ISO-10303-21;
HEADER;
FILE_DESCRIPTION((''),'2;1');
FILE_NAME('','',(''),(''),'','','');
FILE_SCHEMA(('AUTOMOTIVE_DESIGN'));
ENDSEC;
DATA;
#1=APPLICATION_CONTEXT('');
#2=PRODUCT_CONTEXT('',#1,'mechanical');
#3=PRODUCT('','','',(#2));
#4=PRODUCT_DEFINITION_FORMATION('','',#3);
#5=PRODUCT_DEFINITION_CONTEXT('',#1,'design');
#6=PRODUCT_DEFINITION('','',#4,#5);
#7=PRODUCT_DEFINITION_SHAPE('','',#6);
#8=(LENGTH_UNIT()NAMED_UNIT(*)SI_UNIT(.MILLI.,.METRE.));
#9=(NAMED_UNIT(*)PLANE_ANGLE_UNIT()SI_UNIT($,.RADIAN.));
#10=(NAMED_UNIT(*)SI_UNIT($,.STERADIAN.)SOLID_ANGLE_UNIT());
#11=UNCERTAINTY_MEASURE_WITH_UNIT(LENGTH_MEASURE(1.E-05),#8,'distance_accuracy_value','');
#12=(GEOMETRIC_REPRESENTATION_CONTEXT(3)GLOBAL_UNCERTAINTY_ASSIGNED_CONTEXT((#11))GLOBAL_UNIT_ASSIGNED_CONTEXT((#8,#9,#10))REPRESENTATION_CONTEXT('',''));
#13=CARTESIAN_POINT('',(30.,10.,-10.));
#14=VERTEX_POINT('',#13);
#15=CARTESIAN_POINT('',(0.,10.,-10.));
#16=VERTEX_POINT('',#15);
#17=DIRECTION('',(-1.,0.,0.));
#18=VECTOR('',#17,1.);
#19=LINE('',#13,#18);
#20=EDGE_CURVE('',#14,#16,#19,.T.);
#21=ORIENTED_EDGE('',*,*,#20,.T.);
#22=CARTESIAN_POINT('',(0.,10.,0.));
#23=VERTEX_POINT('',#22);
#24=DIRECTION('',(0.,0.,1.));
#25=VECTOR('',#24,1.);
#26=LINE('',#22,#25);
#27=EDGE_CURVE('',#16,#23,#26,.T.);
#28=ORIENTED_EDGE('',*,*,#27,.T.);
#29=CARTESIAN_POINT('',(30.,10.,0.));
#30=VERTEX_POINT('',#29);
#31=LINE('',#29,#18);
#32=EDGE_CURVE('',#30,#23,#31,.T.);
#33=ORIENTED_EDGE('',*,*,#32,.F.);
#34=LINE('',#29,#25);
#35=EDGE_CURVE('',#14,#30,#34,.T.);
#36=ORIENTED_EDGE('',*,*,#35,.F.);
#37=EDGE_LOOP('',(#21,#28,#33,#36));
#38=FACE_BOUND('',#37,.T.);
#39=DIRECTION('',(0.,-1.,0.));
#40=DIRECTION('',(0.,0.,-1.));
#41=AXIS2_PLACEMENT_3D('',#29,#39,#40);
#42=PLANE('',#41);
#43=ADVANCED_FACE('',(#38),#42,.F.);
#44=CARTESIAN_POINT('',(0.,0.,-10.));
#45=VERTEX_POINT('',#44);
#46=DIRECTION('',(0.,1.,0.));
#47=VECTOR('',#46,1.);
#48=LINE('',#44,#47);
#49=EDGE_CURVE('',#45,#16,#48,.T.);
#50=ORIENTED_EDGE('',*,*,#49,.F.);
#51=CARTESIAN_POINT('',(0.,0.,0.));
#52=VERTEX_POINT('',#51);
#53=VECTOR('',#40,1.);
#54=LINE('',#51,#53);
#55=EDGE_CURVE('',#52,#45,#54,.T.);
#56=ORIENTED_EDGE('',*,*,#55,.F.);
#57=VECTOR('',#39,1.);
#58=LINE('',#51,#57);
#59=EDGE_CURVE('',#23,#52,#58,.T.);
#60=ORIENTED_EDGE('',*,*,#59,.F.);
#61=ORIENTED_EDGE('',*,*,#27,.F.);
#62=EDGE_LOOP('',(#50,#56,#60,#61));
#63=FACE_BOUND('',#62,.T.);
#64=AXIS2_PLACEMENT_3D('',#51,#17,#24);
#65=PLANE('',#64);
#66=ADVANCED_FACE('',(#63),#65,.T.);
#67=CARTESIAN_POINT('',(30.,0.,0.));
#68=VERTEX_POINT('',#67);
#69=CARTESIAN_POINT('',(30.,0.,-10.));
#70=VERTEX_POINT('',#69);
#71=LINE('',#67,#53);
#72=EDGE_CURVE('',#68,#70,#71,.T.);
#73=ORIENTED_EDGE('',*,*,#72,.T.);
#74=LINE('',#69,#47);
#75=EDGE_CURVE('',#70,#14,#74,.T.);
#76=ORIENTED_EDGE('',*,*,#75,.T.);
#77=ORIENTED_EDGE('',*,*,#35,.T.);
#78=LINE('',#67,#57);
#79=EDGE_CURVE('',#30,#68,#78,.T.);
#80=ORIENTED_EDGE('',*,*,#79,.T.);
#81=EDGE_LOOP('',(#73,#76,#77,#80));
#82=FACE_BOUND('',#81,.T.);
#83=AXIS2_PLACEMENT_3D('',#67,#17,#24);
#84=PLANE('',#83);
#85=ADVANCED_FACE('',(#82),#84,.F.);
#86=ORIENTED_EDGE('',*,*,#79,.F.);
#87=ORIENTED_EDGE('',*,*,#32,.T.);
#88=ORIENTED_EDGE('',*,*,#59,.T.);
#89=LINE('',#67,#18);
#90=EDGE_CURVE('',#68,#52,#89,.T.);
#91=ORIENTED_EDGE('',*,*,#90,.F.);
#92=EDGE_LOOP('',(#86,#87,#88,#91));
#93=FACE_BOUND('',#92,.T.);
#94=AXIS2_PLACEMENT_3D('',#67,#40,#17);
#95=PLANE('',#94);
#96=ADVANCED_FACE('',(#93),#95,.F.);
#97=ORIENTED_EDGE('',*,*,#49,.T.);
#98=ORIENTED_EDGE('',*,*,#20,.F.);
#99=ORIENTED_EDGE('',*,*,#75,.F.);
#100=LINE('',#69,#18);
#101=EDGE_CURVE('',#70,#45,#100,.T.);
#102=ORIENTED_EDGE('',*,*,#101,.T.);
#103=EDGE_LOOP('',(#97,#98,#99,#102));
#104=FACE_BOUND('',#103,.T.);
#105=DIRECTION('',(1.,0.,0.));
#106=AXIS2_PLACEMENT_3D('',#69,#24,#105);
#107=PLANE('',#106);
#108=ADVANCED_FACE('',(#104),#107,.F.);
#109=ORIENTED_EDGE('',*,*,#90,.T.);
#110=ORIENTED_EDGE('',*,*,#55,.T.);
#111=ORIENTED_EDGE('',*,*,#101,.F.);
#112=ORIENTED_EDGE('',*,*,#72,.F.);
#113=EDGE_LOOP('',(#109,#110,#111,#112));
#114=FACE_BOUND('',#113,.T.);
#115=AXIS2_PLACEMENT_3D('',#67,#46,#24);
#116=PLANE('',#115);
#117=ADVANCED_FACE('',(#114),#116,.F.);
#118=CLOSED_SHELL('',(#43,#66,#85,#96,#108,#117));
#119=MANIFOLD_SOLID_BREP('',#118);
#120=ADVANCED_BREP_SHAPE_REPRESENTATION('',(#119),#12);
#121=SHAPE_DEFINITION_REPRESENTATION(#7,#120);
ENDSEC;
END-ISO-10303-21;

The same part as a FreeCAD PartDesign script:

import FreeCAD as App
import Part
import Sketcher
from FreeCAD import Vector

doc = App.newDocument("Part")
params = doc.addObject("Spreadsheet::Sheet", "Params")
for row, (alias, value) in enumerate([
    ("sketch1_width", "10 mm"),
    ("pad1_length", "30 mm"),
], start=1):
    params.set(f"A{row}", alias)
    params.set(f"B{row}", "=" + value)
    params.setAlias(f"B{row}", alias)

body = doc.addObject("PartDesign::Body", "Body")

# Sketch on YZ plane
sketch1 = body.newObject("Sketcher::SketchObject", "Sketch")
sketch1.AttachmentSupport = (doc.getObject("YZ_Plane"), [""])
sketch1.MapMode = "FlatFace"
sketch1.addGeometry([
    Part.LineSegment(Vector(10, 0, 0), Vector(0, 0, 0)),
    Part.LineSegment(Vector(0, 0, 0), Vector(0, -10, 0)),
    Part.LineSegment(Vector(0, -10, 0), Vector(10, -10, 0)),
    Part.LineSegment(Vector(10, -10, 0), Vector(10, 0, 0)),
], False)
sketch1.addConstraint([
    Sketcher.Constraint("Coincident", 0, 2, 1, 1),
    Sketcher.Constraint("Coincident", 1, 2, 2, 1),
    Sketcher.Constraint("Coincident", 2, 2, 3, 1),
    Sketcher.Constraint("Coincident", 3, 2, 0, 1),
    Sketcher.Constraint("Horizontal", 0),
    Sketcher.Constraint("Vertical", 1),
    Sketcher.Constraint("Horizontal", 2),
    Sketcher.Constraint("Vertical", 3),
    Sketcher.Constraint("Coincident", 0, 2, -1, 1),
    Sketcher.Constraint("Equal", 2, 1),
    Sketcher.Constraint("DistanceX", 0, 2, 0, 1, 10.0),
])
sketch1.setExpression("Constraints[10]", "Params.sketch1_width")
pad1 = body.newObject("PartDesign::Pad", "Pad")
pad1.Profile = sketch1
pad1.setExpression("Length", "Params.pad1_length")

doc.recompute()
